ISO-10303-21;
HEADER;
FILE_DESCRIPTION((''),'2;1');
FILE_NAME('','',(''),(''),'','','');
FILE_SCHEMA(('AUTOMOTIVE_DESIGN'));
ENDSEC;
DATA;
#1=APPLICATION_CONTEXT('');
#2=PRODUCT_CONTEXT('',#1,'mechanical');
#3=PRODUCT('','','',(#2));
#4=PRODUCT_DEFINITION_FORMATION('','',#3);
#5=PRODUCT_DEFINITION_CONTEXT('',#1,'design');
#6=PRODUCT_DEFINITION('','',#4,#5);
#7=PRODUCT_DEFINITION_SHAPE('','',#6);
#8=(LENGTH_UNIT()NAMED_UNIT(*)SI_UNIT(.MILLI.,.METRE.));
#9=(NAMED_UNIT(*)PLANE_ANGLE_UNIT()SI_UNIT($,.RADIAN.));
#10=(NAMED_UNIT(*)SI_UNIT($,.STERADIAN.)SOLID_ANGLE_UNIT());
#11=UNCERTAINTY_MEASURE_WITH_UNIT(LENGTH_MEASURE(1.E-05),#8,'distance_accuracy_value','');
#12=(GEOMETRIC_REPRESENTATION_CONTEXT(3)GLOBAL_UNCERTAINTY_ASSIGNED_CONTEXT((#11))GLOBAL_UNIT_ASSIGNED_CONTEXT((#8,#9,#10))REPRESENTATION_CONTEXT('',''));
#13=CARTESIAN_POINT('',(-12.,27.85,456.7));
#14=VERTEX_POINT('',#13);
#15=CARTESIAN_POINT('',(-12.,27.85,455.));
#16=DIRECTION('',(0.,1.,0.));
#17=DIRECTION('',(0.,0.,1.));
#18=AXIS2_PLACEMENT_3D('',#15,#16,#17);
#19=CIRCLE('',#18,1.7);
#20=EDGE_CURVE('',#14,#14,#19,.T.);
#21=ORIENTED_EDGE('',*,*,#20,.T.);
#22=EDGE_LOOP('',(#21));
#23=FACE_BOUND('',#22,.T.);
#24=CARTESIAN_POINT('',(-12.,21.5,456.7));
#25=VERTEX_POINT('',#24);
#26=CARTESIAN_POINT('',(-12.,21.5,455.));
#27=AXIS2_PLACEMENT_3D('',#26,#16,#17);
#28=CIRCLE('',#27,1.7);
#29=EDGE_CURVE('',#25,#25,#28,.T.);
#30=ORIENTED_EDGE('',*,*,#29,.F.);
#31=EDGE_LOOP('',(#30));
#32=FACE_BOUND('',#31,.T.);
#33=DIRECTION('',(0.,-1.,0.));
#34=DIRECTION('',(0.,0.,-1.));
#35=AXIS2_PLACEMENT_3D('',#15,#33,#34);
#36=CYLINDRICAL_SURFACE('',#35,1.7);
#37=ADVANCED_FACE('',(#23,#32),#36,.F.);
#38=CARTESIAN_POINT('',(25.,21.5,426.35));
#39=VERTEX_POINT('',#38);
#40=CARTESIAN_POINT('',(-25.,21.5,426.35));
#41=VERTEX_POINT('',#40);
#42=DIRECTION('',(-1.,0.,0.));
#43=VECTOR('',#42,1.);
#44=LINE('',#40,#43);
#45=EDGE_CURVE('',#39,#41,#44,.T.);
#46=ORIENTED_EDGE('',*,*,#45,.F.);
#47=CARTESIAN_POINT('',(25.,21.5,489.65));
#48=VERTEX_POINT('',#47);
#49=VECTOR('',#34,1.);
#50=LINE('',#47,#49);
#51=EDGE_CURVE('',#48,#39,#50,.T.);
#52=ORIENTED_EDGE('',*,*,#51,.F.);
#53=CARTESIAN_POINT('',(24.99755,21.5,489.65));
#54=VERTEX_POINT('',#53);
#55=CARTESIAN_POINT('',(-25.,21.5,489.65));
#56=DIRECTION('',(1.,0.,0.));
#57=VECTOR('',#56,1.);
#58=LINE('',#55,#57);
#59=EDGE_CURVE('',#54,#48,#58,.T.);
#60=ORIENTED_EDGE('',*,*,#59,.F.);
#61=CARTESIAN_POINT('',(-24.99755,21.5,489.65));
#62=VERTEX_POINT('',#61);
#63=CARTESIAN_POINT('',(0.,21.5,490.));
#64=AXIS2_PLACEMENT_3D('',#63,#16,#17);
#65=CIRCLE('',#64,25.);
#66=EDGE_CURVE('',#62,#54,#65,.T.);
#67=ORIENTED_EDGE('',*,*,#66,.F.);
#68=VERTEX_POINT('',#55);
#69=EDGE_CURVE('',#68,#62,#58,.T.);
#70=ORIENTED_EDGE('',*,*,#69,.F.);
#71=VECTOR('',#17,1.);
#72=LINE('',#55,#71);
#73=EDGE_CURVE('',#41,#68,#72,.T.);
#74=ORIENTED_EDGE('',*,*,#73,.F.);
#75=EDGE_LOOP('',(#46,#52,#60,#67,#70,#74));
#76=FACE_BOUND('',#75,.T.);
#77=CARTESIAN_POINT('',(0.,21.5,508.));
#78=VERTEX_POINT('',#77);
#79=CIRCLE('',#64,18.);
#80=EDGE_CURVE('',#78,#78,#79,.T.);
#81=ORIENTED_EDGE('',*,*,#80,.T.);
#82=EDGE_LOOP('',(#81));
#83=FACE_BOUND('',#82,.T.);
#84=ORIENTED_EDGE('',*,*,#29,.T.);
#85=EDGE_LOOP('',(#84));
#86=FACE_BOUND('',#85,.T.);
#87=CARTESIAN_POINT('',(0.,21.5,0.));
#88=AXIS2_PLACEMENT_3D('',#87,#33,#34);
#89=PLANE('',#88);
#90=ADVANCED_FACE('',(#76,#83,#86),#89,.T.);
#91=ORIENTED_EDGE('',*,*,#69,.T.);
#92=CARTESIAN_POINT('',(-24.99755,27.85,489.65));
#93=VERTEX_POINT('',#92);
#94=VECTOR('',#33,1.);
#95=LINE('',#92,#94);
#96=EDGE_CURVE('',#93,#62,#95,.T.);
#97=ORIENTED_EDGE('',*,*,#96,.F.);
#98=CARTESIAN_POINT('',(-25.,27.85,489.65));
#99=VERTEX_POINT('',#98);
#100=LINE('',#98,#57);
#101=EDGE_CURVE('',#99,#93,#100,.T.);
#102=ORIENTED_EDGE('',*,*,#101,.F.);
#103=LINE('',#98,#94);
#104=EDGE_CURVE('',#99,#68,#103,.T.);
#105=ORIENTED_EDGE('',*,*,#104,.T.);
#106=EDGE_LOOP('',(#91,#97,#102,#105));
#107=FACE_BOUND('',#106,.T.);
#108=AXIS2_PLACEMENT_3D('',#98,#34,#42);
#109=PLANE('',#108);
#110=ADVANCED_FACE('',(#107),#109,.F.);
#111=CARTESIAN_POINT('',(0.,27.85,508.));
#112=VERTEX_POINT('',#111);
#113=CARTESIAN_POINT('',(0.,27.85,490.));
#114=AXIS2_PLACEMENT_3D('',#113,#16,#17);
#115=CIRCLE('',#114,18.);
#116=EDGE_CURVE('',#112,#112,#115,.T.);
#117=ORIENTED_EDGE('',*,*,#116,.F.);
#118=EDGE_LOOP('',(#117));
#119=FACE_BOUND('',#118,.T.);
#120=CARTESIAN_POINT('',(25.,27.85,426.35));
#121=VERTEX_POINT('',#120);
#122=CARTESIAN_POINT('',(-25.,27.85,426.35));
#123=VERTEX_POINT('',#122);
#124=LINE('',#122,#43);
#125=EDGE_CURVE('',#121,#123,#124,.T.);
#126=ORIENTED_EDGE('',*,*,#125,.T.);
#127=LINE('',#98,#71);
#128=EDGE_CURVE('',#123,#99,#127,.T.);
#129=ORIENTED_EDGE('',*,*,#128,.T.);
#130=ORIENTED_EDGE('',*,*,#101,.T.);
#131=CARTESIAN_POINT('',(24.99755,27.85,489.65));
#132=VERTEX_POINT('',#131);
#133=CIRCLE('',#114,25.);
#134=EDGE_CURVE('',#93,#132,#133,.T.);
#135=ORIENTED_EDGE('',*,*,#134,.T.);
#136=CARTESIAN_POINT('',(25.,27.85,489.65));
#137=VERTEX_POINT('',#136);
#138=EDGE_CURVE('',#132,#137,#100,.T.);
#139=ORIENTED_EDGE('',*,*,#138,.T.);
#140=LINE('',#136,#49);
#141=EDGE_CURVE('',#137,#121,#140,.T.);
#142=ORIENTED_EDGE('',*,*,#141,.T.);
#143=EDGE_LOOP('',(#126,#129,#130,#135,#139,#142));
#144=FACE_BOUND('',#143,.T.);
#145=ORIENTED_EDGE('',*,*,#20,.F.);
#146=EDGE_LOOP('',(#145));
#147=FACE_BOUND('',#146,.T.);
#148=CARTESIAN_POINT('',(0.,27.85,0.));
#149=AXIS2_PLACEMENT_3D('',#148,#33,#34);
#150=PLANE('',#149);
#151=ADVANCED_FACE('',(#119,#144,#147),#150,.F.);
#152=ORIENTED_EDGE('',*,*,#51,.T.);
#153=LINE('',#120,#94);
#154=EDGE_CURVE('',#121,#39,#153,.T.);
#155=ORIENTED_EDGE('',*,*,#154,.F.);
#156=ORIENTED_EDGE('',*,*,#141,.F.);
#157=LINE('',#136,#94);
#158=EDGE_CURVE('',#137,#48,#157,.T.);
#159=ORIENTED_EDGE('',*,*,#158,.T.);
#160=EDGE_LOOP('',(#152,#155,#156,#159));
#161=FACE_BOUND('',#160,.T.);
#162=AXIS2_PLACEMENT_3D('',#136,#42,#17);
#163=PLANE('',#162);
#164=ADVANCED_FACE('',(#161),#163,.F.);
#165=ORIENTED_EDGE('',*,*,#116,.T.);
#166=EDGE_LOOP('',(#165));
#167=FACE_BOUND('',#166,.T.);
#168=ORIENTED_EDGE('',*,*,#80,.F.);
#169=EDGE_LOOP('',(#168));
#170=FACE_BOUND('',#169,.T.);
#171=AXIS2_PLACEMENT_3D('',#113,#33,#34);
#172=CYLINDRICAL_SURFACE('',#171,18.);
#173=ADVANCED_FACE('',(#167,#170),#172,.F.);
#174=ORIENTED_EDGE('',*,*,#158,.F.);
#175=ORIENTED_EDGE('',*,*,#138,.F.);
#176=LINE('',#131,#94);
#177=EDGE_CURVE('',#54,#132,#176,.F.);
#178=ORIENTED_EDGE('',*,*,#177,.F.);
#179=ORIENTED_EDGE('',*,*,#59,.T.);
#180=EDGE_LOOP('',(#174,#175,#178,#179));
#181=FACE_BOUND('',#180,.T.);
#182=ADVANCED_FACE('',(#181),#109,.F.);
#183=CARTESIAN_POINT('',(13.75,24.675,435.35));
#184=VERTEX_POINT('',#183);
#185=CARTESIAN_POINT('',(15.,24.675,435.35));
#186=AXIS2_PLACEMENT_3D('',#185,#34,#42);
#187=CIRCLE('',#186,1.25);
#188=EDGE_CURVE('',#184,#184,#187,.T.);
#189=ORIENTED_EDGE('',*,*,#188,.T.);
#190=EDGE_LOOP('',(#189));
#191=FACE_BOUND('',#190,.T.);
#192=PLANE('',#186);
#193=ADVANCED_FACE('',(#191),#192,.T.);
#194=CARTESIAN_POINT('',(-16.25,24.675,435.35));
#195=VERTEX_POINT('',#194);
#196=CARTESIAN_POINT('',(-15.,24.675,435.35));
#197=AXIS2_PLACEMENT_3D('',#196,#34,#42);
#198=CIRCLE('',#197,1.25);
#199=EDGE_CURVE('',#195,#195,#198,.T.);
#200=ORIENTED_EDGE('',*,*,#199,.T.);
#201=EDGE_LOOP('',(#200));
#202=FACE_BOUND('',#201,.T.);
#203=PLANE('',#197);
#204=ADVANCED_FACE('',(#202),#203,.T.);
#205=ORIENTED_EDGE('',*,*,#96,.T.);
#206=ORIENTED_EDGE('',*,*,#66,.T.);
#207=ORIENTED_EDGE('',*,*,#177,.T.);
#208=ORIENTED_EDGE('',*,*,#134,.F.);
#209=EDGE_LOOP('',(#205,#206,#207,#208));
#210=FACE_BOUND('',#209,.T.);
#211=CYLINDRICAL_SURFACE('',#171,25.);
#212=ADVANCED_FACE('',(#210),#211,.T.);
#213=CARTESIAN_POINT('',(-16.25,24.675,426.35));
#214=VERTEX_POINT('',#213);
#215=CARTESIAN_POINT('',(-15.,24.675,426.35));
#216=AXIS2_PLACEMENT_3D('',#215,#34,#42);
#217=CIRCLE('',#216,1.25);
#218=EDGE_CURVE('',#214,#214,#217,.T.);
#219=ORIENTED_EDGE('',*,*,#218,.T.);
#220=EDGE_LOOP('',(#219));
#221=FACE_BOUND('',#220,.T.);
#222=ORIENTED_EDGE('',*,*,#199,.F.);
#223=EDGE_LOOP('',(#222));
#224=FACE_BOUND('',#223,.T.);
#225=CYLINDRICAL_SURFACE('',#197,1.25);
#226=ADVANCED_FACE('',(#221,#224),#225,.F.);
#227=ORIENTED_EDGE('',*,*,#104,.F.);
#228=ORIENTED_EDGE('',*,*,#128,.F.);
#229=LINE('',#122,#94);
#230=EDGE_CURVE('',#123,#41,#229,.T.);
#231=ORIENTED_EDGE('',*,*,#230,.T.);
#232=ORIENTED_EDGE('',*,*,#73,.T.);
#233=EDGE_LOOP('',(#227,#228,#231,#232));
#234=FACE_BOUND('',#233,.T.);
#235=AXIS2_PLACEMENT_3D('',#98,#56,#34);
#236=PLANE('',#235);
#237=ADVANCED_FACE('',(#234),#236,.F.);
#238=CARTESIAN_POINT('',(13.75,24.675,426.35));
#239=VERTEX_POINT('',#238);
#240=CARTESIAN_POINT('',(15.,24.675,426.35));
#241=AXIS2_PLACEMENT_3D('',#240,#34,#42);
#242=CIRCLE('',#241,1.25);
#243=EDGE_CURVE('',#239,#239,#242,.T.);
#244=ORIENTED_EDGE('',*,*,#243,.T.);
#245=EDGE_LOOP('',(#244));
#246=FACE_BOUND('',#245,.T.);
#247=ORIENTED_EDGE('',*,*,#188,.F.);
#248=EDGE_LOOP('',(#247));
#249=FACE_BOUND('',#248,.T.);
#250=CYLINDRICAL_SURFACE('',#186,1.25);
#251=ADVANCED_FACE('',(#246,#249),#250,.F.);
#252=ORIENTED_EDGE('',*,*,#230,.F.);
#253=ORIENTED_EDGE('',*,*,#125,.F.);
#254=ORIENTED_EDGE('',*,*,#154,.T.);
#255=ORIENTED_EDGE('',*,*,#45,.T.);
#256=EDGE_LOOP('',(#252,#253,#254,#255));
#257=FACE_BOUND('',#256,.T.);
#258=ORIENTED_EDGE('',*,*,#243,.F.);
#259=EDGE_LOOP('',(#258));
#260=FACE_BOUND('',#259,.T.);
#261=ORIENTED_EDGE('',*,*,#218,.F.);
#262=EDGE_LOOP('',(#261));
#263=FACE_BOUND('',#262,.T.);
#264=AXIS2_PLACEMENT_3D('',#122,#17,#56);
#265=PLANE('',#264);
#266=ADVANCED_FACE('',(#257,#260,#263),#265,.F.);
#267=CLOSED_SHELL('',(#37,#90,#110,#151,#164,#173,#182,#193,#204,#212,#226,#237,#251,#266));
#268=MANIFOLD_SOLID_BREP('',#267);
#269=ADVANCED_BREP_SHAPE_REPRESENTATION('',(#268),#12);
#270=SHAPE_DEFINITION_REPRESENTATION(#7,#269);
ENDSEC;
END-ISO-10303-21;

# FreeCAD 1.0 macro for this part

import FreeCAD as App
import Part
import Sketcher

V = App.Vector


def add_polygon(sketch, points):
    """Adds a closed chain of lines whose ends are joined by coincident constraints."""
    first, n = sketch.GeometryCount, len(points)
    for a, b in zip(points, points[1:] + points[:1]):
        sketch.addGeometry(Part.LineSegment(App.Vector(*a, 0), App.Vector(*b, 0)), False)
    for i in range(n):
        sketch.addConstraint(Sketcher.Constraint("Coincident", first + i, 2, first + (i + 1) % n, 1))

doc = App.newDocument("Part")
body = doc.addObject("PartDesign::Body", "Body")

sketch1 = body.newObject("Sketcher::SketchObject", "Sketch")
sketch1.AttachmentSupport = (doc.getObject("XZ_Plane"), [""])
sketch1.MapMode = "FlatFace"
sketch1.AttachmentOffset = App.Placement(V(0, 0, -21.5), App.Rotation())
add_polygon(sketch1, [(-25, 426.35), (-25, 489.65), (25, 489.65), (25, 426.35)])
sketch1.addConstraint([
    Sketcher.Constraint("Vertical", 0),
    Sketcher.Constraint("Horizontal", 1),
    Sketcher.Constraint("Vertical", 2),
    Sketcher.Constraint("Horizontal", 3),
    Sketcher.Constraint("DistanceX", 1, 1, 1, 2, 50.0),
    Sketcher.Constraint("DistanceY", 0, 1, 0, 2, 63.3),
    Sketcher.Constraint("DistanceX", 0, 2, -1, 1, 25.0),
    Sketcher.Constraint("DistanceY", -1, 1, 0, 2, 489.65),
])
pad1 = body.newObject("PartDesign::Pad", "Pad")
pad1.Profile = sketch1
pad1.Length = 6.35
pad1.Reversed = True

sketch2 = body.newObject("Sketcher::SketchObject", "Sketch001")
sketch2.AttachmentSupport = (doc.getObject("XZ_Plane"), [""])
sketch2.MapMode = "FlatFace"
sketch2.AttachmentOffset = App.Placement(V(0, 0, -21.5), App.Rotation())
sketch2.addGeometry(Part.Circle(V(0, 490, 0), V(0, 0, 1), 25), False)
sketch2.addConstraint([
    Sketcher.Constraint("PointOnObject", 0, 3, -2),
    Sketcher.Constraint("Diameter", 0, 50.0),
    Sketcher.Constraint("DistanceY", -1, 1, 0, 3, 490.0),
])
pad2 = body.newObject("PartDesign::Pad", "Pad001")
pad2.Profile = sketch2
pad2.Length = 6.35
pad2.Reversed = True

sketch3 = body.newObject("Sketcher::SketchObject", "Sketch002")
sketch3.AttachmentSupport = (doc.getObject("XZ_Plane"), [""])
sketch3.MapMode = "FlatFace"
sketch3.AttachmentOffset = App.Placement(V(0, 0, -21.5), App.Rotation())
sketch3.addGeometry(Part.Circle(V(0, 490, 0), V(0, 0, 1), 18), False)
sketch3.addConstraint([
    Sketcher.Constraint("PointOnObject", 0, 3, -2),
    Sketcher.Constraint("Diameter", 0, 36.0),
    Sketcher.Constraint("DistanceY", -1, 1, 0, 3, 490.0),
])
pocket1 = body.newObject("PartDesign::Pocket", "Pocket")
pocket1.Profile = sketch3
pocket1.Length = 6.35

sketch4 = body.newObject("Sketcher::SketchObject", "Sketch003")
sketch4.AttachmentSupport = (doc.getObject("XZ_Plane"), [""])
sketch4.MapMode = "FlatFace"
sketch4.AttachmentOffset = App.Placement(V(0, 0, -21.5), App.Rotation())
sketch4.addGeometry(Part.Circle(V(-12, 455, 0), V(0, 0, 1), 1.7), False)
sketch4.addConstraint([
    Sketcher.Constraint("Diameter", 0, 3.4),
    Sketcher.Constraint("DistanceX", 0, 3, -1, 1, 12.0),
    Sketcher.Constraint("DistanceY", -1, 1, 0, 3, 455.0),
])
pocket2 = body.newObject("PartDesign::Pocket", "Pocket001")
pocket2.Profile = sketch4
pocket2.Length = 6.35

sketch5 = body.newObject("Sketcher::SketchObject", "Sketch004")
sketch5.AttachmentSupport = (doc.getObject("XY_Plane"), [""])
sketch5.MapMode = "FlatFace"
sketch5.AttachmentOffset = App.Placement(V(0, 0, 426.35), App.Rotation())
sketch5.addGeometry([
    Part.Circle(V(-15, 24.675, 0), V(0, 0, 1), 1.25),
    Part.Circle(V(15, 24.675, 0), V(0, 0, 1), 1.25),
], False)
sketch5.addConstraint([
    Sketcher.Constraint("Equal", 0, 1),
    Sketcher.Constraint("Symmetric", 0, 3, 1, 3, -2),
    Sketcher.Constraint("Diameter", 0, 2.5),
    Sketcher.Constraint("DistanceX", 0, 3, -1, 1, 15.0),
    Sketcher.Constraint("DistanceY", -1, 1, 0, 3, 24.675),
])
pocket3 = body.newObject("PartDesign::Pocket", "Pocket002")
pocket3.Profile = sketch5
pocket3.Length = 9
pocket3.Reversed = True

doc.recompute()
